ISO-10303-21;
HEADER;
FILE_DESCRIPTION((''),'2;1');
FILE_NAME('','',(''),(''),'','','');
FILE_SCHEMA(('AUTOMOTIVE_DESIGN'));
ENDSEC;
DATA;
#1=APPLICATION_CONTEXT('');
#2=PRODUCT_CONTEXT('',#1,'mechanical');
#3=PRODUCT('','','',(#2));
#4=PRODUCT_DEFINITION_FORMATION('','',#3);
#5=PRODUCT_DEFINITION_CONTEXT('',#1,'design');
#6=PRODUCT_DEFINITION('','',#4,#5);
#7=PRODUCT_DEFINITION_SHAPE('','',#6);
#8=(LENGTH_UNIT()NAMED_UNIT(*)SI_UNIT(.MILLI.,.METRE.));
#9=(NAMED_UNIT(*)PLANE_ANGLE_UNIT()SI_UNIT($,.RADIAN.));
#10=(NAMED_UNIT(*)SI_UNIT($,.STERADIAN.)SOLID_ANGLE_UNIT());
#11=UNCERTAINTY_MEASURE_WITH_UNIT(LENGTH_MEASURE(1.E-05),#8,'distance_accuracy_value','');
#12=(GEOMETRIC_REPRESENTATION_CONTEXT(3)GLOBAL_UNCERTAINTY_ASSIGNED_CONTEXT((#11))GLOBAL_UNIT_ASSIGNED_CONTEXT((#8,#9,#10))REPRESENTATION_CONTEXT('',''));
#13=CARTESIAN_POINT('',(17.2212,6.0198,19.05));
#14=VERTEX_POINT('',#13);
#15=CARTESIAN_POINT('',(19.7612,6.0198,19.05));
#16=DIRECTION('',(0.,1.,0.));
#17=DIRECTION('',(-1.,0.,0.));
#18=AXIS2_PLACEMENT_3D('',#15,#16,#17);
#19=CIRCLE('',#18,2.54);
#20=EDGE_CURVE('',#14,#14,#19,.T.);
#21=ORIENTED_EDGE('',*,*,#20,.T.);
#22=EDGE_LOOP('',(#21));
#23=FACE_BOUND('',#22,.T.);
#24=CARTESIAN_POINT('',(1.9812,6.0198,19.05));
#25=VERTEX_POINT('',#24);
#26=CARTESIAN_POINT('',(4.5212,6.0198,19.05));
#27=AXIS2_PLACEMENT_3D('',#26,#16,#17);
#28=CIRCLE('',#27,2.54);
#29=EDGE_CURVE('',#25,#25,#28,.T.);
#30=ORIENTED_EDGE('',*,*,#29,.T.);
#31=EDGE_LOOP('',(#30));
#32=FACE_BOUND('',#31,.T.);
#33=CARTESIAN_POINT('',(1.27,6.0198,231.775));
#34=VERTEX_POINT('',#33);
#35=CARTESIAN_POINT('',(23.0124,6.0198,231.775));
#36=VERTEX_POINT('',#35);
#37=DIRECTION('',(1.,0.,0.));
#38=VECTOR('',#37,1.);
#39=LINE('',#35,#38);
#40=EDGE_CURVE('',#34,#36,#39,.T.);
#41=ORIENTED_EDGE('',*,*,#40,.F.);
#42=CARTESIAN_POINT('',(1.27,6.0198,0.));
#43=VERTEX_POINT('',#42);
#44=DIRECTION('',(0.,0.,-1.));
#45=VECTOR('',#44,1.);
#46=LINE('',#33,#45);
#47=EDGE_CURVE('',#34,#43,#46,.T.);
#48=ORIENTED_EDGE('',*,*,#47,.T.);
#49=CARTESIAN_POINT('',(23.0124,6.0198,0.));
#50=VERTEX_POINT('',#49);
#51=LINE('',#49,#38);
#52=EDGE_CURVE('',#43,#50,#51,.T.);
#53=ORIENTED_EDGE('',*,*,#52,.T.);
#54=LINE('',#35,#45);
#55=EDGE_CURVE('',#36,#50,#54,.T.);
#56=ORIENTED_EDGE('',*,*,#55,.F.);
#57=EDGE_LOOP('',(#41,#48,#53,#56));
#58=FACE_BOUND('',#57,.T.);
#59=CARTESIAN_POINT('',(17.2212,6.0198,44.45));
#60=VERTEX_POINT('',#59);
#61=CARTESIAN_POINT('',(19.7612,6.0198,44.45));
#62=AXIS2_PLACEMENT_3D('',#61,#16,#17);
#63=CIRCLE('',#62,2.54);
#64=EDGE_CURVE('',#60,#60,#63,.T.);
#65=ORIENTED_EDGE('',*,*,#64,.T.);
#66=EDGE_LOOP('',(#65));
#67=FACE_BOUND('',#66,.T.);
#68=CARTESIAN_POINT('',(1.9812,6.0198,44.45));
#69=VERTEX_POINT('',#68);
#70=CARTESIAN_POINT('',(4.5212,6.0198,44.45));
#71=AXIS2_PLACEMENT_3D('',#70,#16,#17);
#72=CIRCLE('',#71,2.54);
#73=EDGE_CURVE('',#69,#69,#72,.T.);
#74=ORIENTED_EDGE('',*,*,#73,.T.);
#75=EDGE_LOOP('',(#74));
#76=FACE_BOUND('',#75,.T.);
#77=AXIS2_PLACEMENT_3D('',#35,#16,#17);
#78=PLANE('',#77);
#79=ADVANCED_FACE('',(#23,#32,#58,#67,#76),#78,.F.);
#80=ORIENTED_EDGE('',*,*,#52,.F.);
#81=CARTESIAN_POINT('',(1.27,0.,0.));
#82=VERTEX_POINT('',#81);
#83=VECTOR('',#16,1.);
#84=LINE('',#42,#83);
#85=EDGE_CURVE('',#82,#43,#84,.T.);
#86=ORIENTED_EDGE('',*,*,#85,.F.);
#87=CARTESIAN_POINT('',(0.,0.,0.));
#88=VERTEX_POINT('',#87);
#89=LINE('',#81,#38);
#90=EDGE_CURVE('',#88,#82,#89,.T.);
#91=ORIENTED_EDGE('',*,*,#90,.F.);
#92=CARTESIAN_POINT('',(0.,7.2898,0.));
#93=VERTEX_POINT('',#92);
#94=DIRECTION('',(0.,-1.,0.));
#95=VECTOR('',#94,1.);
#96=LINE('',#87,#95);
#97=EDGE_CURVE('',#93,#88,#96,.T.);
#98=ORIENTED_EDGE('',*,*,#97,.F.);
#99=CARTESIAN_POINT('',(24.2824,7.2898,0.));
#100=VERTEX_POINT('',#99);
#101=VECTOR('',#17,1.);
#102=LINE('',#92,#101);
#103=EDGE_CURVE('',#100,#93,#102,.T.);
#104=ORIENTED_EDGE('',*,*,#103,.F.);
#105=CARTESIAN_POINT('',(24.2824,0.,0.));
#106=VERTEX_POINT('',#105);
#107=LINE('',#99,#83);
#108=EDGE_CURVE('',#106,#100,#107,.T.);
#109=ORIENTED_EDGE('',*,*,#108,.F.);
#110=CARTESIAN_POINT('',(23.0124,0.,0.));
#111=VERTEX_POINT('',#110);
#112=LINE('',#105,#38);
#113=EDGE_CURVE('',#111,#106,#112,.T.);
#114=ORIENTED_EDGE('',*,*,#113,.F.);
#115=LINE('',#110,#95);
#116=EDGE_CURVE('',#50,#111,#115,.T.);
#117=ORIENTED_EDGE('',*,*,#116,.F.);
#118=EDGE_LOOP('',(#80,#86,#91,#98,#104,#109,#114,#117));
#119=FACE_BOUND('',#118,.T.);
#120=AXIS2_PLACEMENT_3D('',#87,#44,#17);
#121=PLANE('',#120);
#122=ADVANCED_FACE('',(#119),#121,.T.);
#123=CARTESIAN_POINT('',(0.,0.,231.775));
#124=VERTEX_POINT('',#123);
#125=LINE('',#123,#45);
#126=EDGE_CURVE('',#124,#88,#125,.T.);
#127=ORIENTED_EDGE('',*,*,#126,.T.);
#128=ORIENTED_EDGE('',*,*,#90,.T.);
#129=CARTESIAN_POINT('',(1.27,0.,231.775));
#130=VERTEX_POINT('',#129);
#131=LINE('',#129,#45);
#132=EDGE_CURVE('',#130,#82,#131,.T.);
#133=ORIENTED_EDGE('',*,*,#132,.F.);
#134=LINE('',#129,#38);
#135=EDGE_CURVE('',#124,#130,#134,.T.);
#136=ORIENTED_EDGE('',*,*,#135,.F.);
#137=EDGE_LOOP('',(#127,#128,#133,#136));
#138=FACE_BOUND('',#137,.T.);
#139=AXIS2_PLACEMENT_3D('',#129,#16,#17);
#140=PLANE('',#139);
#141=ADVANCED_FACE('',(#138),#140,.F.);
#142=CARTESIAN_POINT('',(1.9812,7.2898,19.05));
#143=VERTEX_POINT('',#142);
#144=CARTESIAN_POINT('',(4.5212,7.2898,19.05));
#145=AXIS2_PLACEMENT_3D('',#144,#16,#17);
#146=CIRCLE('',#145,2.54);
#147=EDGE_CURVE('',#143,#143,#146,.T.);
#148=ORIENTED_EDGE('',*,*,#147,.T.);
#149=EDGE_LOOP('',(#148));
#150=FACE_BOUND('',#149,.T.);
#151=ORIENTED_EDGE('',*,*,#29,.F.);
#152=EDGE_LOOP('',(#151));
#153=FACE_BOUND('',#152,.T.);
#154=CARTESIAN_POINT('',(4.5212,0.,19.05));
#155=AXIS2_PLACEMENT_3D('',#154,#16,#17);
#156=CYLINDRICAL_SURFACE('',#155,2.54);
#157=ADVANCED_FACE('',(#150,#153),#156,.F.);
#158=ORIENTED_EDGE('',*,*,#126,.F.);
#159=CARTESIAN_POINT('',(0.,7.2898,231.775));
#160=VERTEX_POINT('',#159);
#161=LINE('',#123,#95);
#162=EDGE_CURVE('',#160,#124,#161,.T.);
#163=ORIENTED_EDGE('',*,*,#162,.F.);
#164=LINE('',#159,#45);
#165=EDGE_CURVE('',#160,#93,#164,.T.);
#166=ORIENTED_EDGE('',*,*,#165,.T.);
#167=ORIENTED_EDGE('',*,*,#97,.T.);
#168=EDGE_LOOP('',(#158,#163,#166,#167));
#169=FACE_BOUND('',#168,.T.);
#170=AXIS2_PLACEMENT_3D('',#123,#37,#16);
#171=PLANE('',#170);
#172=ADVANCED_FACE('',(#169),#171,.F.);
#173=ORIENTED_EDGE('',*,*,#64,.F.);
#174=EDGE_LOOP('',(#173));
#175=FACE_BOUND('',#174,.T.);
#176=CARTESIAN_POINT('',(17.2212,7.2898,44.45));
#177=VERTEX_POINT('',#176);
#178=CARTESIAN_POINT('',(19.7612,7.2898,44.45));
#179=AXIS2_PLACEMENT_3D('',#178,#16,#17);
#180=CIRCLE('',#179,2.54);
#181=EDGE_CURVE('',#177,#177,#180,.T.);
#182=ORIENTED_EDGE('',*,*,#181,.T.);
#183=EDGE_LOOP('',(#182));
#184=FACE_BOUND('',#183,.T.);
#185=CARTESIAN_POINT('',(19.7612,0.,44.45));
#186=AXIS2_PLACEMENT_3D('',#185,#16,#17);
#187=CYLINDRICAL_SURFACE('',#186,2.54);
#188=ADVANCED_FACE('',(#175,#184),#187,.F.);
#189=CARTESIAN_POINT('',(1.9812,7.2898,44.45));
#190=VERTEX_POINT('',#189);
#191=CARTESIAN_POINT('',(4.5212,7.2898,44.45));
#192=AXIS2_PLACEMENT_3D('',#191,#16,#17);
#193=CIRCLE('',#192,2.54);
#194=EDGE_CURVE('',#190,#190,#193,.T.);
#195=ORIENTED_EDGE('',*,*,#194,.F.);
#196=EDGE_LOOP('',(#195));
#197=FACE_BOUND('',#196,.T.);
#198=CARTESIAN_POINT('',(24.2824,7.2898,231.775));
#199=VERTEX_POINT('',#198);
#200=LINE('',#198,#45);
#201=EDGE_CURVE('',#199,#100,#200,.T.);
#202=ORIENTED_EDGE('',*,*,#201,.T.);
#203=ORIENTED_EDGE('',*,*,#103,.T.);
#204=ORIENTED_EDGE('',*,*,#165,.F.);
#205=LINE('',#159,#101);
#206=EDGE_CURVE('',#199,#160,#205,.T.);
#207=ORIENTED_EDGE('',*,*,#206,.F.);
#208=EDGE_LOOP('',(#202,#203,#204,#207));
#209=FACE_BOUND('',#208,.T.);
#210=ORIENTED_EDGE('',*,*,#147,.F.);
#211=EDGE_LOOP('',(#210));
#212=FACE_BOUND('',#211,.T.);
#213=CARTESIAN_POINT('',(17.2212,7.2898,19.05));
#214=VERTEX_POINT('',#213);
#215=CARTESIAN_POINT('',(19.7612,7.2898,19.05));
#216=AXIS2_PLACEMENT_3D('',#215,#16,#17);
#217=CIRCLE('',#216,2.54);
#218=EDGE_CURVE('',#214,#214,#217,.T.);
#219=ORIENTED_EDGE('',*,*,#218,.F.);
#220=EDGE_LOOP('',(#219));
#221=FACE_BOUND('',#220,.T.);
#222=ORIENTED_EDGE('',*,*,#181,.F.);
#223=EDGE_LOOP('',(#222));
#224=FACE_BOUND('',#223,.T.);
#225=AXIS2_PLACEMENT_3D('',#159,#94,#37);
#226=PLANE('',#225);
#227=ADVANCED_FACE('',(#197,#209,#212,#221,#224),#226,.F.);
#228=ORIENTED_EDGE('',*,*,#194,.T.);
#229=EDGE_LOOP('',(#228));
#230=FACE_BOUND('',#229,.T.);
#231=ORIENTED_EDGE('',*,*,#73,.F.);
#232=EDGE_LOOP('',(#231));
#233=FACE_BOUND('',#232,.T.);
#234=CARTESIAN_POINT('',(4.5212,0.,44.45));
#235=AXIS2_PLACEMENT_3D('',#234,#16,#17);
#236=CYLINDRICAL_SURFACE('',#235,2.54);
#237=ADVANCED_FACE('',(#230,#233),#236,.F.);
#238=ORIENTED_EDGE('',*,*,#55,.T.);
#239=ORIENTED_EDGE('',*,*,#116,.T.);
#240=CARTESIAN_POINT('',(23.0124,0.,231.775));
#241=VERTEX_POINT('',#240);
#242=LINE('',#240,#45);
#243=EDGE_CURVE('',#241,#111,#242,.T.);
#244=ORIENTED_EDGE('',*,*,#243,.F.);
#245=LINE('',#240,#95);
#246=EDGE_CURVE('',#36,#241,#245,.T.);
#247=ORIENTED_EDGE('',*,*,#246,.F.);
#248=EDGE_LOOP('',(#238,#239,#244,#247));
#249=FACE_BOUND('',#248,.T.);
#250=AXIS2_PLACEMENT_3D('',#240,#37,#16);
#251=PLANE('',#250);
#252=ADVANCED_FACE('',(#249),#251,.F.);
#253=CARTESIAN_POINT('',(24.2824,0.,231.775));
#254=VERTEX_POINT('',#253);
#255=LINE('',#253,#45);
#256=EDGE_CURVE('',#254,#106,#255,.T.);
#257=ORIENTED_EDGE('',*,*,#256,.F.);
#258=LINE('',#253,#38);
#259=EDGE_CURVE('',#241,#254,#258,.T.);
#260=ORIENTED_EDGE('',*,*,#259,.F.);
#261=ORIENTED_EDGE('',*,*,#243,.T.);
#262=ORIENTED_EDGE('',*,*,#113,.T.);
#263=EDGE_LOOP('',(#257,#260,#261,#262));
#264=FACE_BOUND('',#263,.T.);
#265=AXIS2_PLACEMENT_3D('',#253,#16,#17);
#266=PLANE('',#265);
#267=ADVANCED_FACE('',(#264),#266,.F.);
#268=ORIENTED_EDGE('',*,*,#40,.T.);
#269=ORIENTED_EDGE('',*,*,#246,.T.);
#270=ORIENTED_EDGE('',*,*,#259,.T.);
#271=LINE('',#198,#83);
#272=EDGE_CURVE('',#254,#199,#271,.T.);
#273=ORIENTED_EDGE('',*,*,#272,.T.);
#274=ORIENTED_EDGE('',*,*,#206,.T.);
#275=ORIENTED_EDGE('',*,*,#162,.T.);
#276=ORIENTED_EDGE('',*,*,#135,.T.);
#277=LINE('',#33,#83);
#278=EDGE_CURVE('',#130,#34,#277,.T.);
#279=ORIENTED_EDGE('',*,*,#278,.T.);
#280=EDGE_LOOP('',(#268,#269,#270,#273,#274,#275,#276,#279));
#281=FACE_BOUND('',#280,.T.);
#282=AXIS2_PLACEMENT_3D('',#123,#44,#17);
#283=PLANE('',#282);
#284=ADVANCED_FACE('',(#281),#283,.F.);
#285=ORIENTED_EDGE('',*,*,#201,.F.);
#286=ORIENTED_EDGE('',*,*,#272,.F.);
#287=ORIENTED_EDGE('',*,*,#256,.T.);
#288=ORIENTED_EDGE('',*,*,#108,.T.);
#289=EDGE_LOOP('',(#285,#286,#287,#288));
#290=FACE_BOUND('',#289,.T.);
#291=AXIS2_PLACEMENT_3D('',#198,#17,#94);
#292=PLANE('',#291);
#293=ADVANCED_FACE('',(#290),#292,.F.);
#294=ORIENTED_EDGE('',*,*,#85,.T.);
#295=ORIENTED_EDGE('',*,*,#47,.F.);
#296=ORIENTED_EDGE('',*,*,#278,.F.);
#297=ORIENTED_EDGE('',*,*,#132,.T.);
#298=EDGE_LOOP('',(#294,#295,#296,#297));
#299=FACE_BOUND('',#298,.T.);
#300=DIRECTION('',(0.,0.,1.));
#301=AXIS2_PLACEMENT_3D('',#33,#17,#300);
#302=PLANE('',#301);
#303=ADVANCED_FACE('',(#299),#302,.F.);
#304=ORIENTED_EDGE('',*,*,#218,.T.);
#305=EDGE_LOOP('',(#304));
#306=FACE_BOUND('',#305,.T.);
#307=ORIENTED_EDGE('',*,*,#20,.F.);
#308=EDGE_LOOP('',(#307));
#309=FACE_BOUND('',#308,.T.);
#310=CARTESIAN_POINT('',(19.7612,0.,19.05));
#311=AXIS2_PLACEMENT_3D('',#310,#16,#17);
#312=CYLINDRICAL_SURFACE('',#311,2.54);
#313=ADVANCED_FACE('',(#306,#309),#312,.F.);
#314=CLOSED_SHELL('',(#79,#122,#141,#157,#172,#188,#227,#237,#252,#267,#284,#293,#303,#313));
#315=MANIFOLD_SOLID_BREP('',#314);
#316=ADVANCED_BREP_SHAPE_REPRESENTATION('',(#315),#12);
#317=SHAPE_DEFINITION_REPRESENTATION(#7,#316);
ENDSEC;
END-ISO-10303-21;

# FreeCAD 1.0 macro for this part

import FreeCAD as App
import Part
import Sketcher

V = App.Vector
Q = App.Units.Quantity


def add_polygon(sketch, points):
    """Adds a closed chain of lines whose ends are joined by coincident constraints."""
    first, n = sketch.GeometryCount, len(points)
    for a, b in zip(points, points[1:] + points[:1]):
        sketch.addGeometry(Part.LineSegment(App.Vector(*a, 0), App.Vector(*b, 0)), False)
    for i in range(n):
        sketch.addConstraint(Sketcher.Constraint("Coincident", first + i, 2, first + (i + 1) % n, 1))

doc = App.newDocument("Part")
params = doc.addObject("Spreadsheet::Sheet", "Params")
for row, (alias, value) in enumerate([
    ("sketch1_width", "0.05 in"),
    ("sketch1_width2", "0.856 in"),
    ("sketch1_height", "0.287 in"),
    ("sketch1_height2", "0.237 in"),
    ("pad1_length", "9.125 in"),
    ("sketch2_diameter", "0.2 in"),
], start=1):
    params.set(f"A{row}", alias)
    params.set(f"B{row}", "=" + value)
    params.setAlias(f"B{row}", alias)

body = doc.addObject("PartDesign::Body", "Body")

sketch1 = doc.addObject("Sketcher::SketchObject", "Sketch")
body.addObject(sketch1)
sketch1.AttachmentSupport = (doc.XY_Plane, [""])
sketch1.MapMode = "FlatFace"
add_polygon(sketch1, [(0, 7.2898), (0, 0), (1.27, 0), (1.27, 6.0198), (23.0124, 6.0198), (23.0124, 0), (24.2824, 0), (24.2824, 7.2898)])
sketch1.addConstraint([
    Sketcher.Constraint("Vertical", 0),
    Sketcher.Constraint("Horizontal", 1),
    Sketcher.Constraint("Vertical", 2),
    Sketcher.Constraint("Horizontal", 3),
    Sketcher.Constraint("Vertical", 4),
    Sketcher.Constraint("Horizontal", 5),
    Sketcher.Constraint("Vertical", 6),
    Sketcher.Constraint("Horizontal", 7),
    Sketcher.Constraint("Coincident", 0, 2, -1, 1),
    Sketcher.Constraint("PointOnObject", 4, 2, -1),
    Sketcher.Constraint("Equal", 1, 5),
    Sketcher.Constraint("DistanceX", 1, 1, 1, 2, Q("0.05 in")),
    Sketcher.Constraint("DistanceX", 3, 1, 3, 2, Q("0.856 in")),
    Sketcher.Constraint("DistanceY", 0, 2, 0, 1, Q("0.287 in")),
    Sketcher.Constraint("DistanceY", 2, 1, 2, 2, Q("0.237 in")),
])
sketch1.setExpression("Constraints[19]", "Params.sketch1_width")
sketch1.setExpression("Constraints[20]", "Params.sketch1_width2")
sketch1.setExpression("Constraints[21]", "Params.sketch1_height")
sketch1.setExpression("Constraints[22]", "Params.sketch1_height2")
pad1 = doc.addObject("PartDesign::Pad", "Pad")
body.addObject(pad1)
pad1.Profile = sketch1
pad1.setExpression("Length", "Params.pad1_length")

sketch2 = doc.addObject("Sketcher::SketchObject", "Sketch001")
body.addObject(sketch2)
sketch2.AttachmentSupport = (doc.XZ_Plane, [""])
sketch2.MapMode = "FlatFace"
sketch2.AttachmentOffset = App.Placement(V(0, 0, -0.287 * 25.4), App.Rotation())
sketch2.addGeometry([
    Part.Circle(V(4.5212, 19.05, 0), V(0, 0, 1), 2.54),
    Part.Circle(V(19.7612, 19.05, 0), V(0, 0, 1), 2.54),
    Part.Circle(V(19.7612, 44.45, 0), V(0, 0, 1), 2.54),
    Part.Circle(V(4.5212, 44.45, 0), V(0, 0, 1), 2.54),
], False)
sketch2.addConstraint([
    Sketcher.Constraint("Equal", 0, 1),
    Sketcher.Constraint("Equal", 1, 2),
    Sketcher.Constraint("Equal", 2, 3),
    Sketcher.Constraint("Horizontal", 0, 3, 1, 3),
    Sketcher.Constraint("Horizontal", 2, 3, 3, 3),
    Sketcher.Constraint("Vertical", 1, 3, 2, 3),
    Sketcher.Constraint("Vertical", 0, 3, 3, 3),
    Sketcher.Constraint("Diameter", 0, Q("0.2 in")),
    Sketcher.Constraint("DistanceY", 1, 3, 2, 3, Q("1 in")),
    Sketcher.Constraint("DistanceX", 0, 3, 1, 3, Q("0.6 in")),
    Sketcher.Constraint("DistanceY", -1, 1, 0, 3, Q("0.75 in")),
    Sketcher.Constraint("DistanceX", -1, 1, 0, 3, Q("0.178 in")),
])
sketch2.setExpression("Constraints[7]", "Params.sketch2_diameter")
pocket1 = doc.addObject("PartDesign::Pocket", "Pocket")
body.addObject(pocket1)
pocket1.Profile = sketch2
pocket1.Type = "ThroughAll"
pocket1.Reversed = True

doc.recompute()
